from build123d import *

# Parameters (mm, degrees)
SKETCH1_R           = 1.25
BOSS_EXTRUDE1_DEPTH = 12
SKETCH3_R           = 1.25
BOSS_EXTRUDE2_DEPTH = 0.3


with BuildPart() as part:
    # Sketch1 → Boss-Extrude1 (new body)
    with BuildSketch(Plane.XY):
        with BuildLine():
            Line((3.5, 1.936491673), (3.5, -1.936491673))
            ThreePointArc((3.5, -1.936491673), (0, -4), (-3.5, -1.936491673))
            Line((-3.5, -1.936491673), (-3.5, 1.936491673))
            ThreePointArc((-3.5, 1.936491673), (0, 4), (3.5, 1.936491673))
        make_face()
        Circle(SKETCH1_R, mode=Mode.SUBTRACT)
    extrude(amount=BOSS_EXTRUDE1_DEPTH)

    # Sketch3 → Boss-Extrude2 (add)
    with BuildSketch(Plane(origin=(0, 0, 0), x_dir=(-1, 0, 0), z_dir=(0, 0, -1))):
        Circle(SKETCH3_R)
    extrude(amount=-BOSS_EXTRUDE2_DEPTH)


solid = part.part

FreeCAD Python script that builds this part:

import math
import FreeCAD as App
import Part
import Sketcher
from FreeCAD import Vector

doc = App.newDocument("Part")
body = doc.addObject("PartDesign::Body", "Body")

# Sketch on XY plane
sketch1 = body.newObject("Sketcher::SketchObject", "Sketch")
sketch1.AttachmentSupport = (doc.getObject("XY_Plane"), [""])
sketch1.MapMode = "FlatFace"
sketch1.addGeometry([
    Part.LineSegment(Vector(3.5, -1.9, 0), Vector(3.5, 1.9, 0)),  # 0
    Part.ArcOfCircle(Part.Circle(Vector(0, 0, 0), Vector(0, 0, 1), 4), math.radians(29), math.radians(151)),  # 1
    Part.LineSegment(Vector(-3.5, 1.9, 0), Vector(-3.5, -1.9, 0)),  # 2
    Part.ArcOfCircle(Part.Circle(Vector(0, 0, 0), Vector(0, 0, 1), 4), math.radians(-151), math.radians(-29)),  # 3
    Part.Circle(Vector(0, 0, 0), Vector(0, 0, 1), 1.2),  # 4
], False)
sketch1.addConstraint([
    Sketcher.Constraint("Coincident", 0, 2, 1, 1),
    Sketcher.Constraint("Coincident", 1, 2, 2, 1),
    Sketcher.Constraint("Coincident", 2, 2, 3, 1),
    Sketcher.Constraint("Coincident", 3, 2, 0, 1),
    Sketcher.Constraint("Vertical", 0),
    Sketcher.Constraint("Vertical", 2),
    Sketcher.Constraint("Coincident", 1, 3, -1, 1),
    Sketcher.Constraint("Coincident", 3, 3, -1, 1),
    Sketcher.Constraint("Coincident", 4, 3, -1, 1),
    Sketcher.Constraint("Equal", 1, 3),
    Sketcher.Constraint("Horizontal", 0, 2, 1, 2),
    Sketcher.Constraint("Radius", 1, 4.0),
    Sketcher.Constraint("Diameter", 4, 2.5),
    Sketcher.Constraint("DistanceX", 1, 2, 0, 2, 7.0),
])
pad1 = body.newObject("PartDesign::Pad", "Pad")
pad1.Profile = sketch1
pad1.Length = 12

# Sketch on XY plane
sketch2 = body.newObject("Sketcher::SketchObject", "Sketch001")
sketch2.AttachmentSupport = (doc.getObject("XY_Plane"), [""])
sketch2.MapMode = "FlatFace"
sketch2.addGeometry(Part.Circle(Vector(0, 0, 0), Vector(0, 0, 1), 1.2), False)
sketch2.addConstraint([
    Sketcher.Constraint("Coincident", 0, 3, -1, 1),
    Sketcher.Constraint("Diameter", 0, 2.5),
])
pad2 = body.newObject("PartDesign::Pad", "Pad001")
pad2.Profile = sketch2
pad2.Length = 0.3

doc.recompute()
